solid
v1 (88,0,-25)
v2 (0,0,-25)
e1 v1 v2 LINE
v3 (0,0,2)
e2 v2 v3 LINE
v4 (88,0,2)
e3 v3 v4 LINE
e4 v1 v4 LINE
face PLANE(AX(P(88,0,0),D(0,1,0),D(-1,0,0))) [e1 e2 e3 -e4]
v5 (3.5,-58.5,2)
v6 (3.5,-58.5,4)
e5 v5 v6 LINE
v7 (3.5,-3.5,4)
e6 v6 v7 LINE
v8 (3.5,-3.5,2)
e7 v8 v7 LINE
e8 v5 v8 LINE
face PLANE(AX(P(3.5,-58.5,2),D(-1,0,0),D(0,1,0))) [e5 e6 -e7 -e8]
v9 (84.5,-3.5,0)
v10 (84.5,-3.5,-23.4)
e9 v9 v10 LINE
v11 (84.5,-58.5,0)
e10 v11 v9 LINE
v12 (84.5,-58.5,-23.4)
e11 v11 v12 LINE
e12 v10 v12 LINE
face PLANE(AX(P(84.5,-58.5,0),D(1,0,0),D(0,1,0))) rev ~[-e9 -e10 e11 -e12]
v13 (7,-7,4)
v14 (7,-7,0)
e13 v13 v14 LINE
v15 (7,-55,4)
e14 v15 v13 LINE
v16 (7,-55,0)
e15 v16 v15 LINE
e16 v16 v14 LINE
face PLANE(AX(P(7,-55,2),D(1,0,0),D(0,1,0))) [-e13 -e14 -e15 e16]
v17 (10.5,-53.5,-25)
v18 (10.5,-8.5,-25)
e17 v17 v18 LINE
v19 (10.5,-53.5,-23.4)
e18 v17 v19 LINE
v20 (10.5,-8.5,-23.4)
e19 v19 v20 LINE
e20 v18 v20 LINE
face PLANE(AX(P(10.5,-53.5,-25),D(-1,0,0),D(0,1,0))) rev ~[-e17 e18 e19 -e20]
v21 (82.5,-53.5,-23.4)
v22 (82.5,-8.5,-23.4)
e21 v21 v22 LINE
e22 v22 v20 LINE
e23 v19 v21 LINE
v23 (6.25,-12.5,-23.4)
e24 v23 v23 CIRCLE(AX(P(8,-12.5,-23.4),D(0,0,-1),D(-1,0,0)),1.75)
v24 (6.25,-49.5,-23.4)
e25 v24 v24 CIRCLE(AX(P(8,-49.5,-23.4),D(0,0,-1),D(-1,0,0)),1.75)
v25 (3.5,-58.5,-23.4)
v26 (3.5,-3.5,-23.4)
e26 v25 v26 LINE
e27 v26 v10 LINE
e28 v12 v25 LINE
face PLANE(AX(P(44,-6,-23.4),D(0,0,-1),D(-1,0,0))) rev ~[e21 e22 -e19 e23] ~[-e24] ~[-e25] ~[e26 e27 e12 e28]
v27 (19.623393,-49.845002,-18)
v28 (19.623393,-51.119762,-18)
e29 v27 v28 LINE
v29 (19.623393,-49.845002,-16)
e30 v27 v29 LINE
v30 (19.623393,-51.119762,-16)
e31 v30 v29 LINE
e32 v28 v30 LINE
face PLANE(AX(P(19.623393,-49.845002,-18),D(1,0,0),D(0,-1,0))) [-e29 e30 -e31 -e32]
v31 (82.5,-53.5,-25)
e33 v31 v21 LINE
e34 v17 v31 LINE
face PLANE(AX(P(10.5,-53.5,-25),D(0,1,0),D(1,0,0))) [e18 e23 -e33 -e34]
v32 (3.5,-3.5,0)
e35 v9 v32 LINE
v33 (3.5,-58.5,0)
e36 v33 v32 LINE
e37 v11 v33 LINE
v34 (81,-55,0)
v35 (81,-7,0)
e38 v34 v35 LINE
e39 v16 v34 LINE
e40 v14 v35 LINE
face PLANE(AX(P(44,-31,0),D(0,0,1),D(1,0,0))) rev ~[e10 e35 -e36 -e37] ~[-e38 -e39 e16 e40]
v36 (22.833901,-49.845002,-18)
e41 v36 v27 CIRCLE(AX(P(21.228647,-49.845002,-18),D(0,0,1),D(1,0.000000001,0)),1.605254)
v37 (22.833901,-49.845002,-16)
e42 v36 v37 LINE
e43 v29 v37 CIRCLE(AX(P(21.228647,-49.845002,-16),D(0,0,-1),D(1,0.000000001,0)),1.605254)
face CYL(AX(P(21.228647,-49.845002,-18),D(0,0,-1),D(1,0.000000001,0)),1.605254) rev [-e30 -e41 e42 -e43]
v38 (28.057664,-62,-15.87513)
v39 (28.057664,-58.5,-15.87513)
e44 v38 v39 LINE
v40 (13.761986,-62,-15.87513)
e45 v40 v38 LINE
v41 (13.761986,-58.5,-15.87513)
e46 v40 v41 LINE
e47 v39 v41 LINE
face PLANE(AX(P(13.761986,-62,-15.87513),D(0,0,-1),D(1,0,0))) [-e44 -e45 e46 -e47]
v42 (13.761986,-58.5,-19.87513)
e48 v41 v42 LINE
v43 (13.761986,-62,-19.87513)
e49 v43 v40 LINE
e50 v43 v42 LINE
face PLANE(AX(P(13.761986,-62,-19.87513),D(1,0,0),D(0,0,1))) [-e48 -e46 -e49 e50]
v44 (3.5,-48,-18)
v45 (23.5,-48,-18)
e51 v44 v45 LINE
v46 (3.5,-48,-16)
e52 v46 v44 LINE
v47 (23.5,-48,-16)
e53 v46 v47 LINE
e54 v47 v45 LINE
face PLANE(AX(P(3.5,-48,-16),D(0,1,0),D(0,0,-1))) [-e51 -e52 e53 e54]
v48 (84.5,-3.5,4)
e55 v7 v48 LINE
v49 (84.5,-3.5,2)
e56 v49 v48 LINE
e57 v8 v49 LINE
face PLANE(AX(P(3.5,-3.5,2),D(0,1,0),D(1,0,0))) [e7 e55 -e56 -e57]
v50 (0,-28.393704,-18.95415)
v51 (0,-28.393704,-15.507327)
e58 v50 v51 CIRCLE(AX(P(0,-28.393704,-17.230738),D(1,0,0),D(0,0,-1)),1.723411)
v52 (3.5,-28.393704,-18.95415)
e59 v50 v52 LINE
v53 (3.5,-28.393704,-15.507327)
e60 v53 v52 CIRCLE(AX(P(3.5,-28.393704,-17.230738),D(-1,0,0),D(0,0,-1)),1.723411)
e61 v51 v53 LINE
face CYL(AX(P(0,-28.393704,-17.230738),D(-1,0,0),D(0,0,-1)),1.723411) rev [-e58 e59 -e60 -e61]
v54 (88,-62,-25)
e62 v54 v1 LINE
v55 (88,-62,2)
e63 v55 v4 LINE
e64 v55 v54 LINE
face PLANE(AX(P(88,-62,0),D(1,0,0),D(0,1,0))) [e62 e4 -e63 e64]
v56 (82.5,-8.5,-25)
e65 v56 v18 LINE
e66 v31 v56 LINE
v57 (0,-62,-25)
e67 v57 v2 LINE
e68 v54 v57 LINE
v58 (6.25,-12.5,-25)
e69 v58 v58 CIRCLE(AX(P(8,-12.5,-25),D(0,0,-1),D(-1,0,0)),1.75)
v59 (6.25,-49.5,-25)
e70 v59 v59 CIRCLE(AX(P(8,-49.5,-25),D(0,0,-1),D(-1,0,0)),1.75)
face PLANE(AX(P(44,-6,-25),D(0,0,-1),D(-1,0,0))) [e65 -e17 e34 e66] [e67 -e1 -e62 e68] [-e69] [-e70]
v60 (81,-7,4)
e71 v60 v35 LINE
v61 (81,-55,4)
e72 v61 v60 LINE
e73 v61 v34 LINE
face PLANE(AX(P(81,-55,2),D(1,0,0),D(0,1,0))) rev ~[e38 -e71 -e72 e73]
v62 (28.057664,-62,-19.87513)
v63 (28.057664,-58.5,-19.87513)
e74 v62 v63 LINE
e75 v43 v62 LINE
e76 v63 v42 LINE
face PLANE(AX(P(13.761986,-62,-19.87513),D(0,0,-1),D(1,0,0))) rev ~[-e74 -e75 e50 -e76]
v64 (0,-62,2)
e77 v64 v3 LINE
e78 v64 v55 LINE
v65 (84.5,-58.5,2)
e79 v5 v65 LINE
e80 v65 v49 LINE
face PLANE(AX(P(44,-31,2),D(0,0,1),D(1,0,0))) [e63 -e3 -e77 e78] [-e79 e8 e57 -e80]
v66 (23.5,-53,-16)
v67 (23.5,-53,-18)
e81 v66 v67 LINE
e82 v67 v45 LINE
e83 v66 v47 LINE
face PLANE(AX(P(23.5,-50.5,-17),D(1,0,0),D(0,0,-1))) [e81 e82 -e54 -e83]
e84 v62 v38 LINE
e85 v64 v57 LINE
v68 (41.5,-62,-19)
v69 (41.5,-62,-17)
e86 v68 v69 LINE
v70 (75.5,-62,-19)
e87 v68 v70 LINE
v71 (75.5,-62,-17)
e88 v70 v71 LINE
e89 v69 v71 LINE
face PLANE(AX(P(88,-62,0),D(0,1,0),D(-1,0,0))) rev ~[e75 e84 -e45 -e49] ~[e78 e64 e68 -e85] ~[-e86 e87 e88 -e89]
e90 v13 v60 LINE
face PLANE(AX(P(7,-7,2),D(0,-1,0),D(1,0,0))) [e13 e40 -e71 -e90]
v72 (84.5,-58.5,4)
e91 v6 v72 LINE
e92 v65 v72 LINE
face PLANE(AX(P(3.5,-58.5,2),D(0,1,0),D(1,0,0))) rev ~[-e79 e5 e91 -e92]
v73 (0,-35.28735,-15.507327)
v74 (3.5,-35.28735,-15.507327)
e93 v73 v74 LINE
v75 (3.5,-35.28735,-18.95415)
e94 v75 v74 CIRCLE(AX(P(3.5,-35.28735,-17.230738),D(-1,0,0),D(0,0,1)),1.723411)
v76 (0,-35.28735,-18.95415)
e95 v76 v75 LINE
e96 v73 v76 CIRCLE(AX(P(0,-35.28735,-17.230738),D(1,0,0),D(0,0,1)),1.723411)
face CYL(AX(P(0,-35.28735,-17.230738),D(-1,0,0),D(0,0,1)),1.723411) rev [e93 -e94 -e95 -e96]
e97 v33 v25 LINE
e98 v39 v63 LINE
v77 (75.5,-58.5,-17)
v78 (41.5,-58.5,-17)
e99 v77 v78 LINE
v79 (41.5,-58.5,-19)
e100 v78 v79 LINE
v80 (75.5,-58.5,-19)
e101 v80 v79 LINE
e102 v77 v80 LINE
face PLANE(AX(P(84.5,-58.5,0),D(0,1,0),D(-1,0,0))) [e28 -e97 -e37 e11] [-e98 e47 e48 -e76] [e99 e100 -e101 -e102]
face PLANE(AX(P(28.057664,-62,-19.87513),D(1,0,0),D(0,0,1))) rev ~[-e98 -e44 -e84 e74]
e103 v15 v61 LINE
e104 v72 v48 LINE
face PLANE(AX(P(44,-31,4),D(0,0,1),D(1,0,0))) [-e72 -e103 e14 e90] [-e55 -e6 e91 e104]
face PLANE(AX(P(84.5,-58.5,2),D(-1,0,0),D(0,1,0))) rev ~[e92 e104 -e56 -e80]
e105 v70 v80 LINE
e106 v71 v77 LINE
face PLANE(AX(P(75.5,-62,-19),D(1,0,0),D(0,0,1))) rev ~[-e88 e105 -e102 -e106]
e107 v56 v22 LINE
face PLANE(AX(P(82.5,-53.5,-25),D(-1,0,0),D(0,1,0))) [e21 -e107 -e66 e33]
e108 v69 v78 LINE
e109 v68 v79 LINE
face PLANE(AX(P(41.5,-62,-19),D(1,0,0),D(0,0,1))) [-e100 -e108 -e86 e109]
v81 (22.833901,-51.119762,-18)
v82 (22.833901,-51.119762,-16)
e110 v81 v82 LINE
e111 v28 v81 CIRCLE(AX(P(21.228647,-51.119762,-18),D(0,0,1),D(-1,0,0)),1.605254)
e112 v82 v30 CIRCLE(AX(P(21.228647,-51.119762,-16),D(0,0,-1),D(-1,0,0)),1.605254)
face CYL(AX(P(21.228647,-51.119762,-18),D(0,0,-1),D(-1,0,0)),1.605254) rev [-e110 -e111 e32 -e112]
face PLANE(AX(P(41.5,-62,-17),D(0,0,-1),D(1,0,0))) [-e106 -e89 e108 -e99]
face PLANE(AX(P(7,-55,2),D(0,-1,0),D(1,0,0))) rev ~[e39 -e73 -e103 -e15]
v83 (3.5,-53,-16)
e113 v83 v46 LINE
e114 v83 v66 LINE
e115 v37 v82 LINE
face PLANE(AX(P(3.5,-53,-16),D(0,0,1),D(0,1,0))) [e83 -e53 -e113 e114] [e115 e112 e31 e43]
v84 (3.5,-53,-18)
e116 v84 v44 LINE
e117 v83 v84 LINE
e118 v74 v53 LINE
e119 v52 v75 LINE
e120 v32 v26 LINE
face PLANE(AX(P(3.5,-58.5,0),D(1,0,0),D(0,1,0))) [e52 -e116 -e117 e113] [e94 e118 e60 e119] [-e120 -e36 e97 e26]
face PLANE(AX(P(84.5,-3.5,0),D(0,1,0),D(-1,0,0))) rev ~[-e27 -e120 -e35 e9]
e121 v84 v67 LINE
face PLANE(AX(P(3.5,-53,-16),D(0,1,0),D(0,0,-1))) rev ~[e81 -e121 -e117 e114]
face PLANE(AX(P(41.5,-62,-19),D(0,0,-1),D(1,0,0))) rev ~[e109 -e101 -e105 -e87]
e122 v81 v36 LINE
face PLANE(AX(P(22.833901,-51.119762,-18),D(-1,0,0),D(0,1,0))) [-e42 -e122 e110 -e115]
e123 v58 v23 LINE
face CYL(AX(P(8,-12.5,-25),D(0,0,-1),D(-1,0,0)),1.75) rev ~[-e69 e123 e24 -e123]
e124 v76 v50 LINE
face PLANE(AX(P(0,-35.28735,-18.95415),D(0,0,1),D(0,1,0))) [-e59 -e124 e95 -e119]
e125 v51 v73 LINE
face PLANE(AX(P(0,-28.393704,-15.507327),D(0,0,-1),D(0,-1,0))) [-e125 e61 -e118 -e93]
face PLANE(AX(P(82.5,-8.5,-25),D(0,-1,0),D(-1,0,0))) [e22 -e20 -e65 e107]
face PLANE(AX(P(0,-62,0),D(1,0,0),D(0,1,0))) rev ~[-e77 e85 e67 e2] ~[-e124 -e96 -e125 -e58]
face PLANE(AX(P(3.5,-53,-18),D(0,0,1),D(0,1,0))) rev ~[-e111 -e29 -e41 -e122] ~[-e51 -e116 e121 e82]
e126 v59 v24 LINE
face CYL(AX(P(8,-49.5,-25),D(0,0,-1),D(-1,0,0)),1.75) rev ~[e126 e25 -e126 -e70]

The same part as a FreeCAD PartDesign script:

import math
import FreeCAD as App
import Part
import Sketcher
Q = App.Units.Quantity


def add_polygon(sketch, points):
    """Adds a closed chain of lines whose ends are joined by coincident constraints."""
    first, n = sketch.GeometryCount, len(points)
    for a, b in zip(points, points[1:] + points[:1]):
        sketch.addGeometry(Part.LineSegment(App.Vector(*a, 0), App.Vector(*b, 0)), False)
    for i in range(n):
        sketch.addConstraint(Sketcher.Constraint("Coincident", first + i, 2, first + (i + 1) % n, 1))

doc = App.newDocument("Part")
body = doc.addObject("PartDesign::Body", "Body")

# Sketch on XY plane
sketch1 = body.newObject("Sketcher::SketchObject", "Sketch")
sketch1.AttachmentSupport = (doc.getObject("XY_Plane"), [""])
sketch1.MapMode = "FlatFace"
add_polygon(sketch1, [(0, 0), (0, -62), (88, -62), (88, 0)])  # lines 0-3
sketch1.addConstraint([
    Sketcher.Constraint("Vertical", 0),
    Sketcher.Constraint("Horizontal", 1),
    Sketcher.Constraint("Vertical", 2),
    Sketcher.Constraint("Horizontal", 3),
    Sketcher.Constraint("Coincident", 3, 2, -1, 1),
    Sketcher.Constraint("DistanceX", 1, 1, 1, 2, Q("88 mm")),
    Sketcher.Constraint("DistanceY", 0, 2, 0, 1, Q("62 mm")),
])
pad1 = body.newObject("PartDesign::Pad", "Pad")
pad1.Profile = sketch1
pad1.Length = 2

# Sketch on XY plane
sketch2 = body.newObject("Sketcher::SketchObject", "Sketch001")
sketch2.AttachmentSupport = (doc.getObject("XY_Plane"), [""])
sketch2.MapMode = "FlatFace"
sketch2.AttachmentOffset = App.Placement(App.Vector(0, 0, 2), App.Rotation())
add_polygon(sketch2, [(4, -4), (4, -58), (84, -58), (84, -4)])  # lines 0-3
add_polygon(sketch2, [(81, -55), (7, -55), (7, -7), (81, -7)])  # lines 4-7
sketch2.addConstraint([
    Sketcher.Constraint("Vertical", 0),
    Sketcher.Constraint("Horizontal", 1),
    Sketcher.Constraint("Vertical", 2),
    Sketcher.Constraint("Horizontal", 3),
    Sketcher.Constraint("Horizontal", 4),
    Sketcher.Constraint("Vertical", 5),
    Sketcher.Constraint("Horizontal", 6),
    Sketcher.Constraint("Vertical", 7),
    Sketcher.Constraint("DistanceX", 1, 1, 1, 2, Q("81 mm")),
    Sketcher.Constraint("DistanceX", 4, 2, 4, 1, Q("74 mm")),
    Sketcher.Constraint("DistanceY", 0, 2, 0, 1, Q("55 mm")),
    Sketcher.Constraint("DistanceY", 5, 1, 5, 2, Q("48 mm")),
    Sketcher.Constraint("DistanceX", -1, 1, 4, 2, Q("7 mm")),
    Sketcher.Constraint("DistanceY", 4, 2, -1, 1, Q("55 mm")),
    Sketcher.Constraint("DistanceX", -1, 1, 0, 2, Q("3.5 mm")),
    Sketcher.Constraint("DistanceY", 0, 2, -1, 1, Q("58.5 mm")),
])
pad2 = body.newObject("PartDesign::Pad", "Pad001")
pad2.Profile = sketch2
pad2.Length = 2

# Sketch on XY plane
sketch3 = body.newObject("Sketcher::SketchObject", "Sketch002")
sketch3.AttachmentSupport = (doc.getObject("XY_Plane"), [""])
sketch3.MapMode = "FlatFace"
add_polygon(sketch3, [(88, 0), (88, -62), (0, -62), (0, 0)])  # lines 0-3
add_polygon(sketch3, [(4, -58), (84, -58), (84, -4), (4, -4)])  # lines 4-7
sketch3.addConstraint([
    Sketcher.Constraint("Vertical", 0),
    Sketcher.Constraint("Horizontal", 1),
    Sketcher.Constraint("Vertical", 2),
    Sketcher.Constraint("Horizontal", 3),
    Sketcher.Constraint("Horizontal", 4),
    Sketcher.Constraint("Vertical", 5),
    Sketcher.Constraint("Horizontal", 6),
    Sketcher.Constraint("Vertical", 7),
    Sketcher.Constraint("Coincident", 2, 2, -1, 1),
    Sketcher.Constraint("DistanceX", 1, 2, 1, 1, Q("88 mm")),
    Sketcher.Constraint("DistanceX", 4, 1, 4, 2, Q("81 mm")),
    Sketcher.Constraint("DistanceY", 0, 2, 0, 1, Q("62 mm")),
    Sketcher.Constraint("DistanceY", 5, 1, 5, 2, Q("55 mm")),
    Sketcher.Constraint("DistanceX", -1, 1, 4, 2, Q("84.5 mm")),
    Sketcher.Constraint("DistanceY", 4, 2, -1, 1, Q("58.5 mm")),
])
pad3 = body.newObject("PartDesign::Pad", "Pad002")
pad3.Profile = sketch3
pad3.Length = 25
pad3.Reversed = True

# Sketch on XY plane
sketch4 = body.newObject("Sketcher::SketchObject", "Sketch003")
sketch4.AttachmentSupport = (doc.getObject("XY_Plane"), [""])
sketch4.MapMode = "FlatFace"
sketch4.AttachmentOffset = App.Placement(App.Vector(0, 0, 2), App.Rotation())
add_polygon(sketch4, [(7, -7), (7, -55), (81, -55), (81, -7)])  # lines 0-3
sketch4.addConstraint([
    Sketcher.Constraint("Vertical", 0),
    Sketcher.Constraint("Horizontal", 1),
    Sketcher.Constraint("Vertical", 2),
    Sketcher.Constraint("Horizontal", 3),
    Sketcher.Constraint("DistanceX", 1, 1, 1, 2, Q("74 mm")),
    Sketcher.Constraint("DistanceY", 0, 2, 0, 1, Q("48 mm")),
    Sketcher.Constraint("DistanceX", -1, 1, 0, 2, Q("7 mm")),
    Sketcher.Constraint("DistanceY", 0, 2, -1, 1, Q("55 mm")),
])
pocket1 = body.newObject("PartDesign::Pocket", "Pocket")
pocket1.Profile = sketch4
pocket1.Length = 20

# Sketch on XY plane
sketch5 = body.newObject("Sketcher::SketchObject", "Sketch004")
sketch5.AttachmentSupport = (doc.getObject("XY_Plane"), [""])
sketch5.MapMode = "FlatFace"
sketch5.AttachmentOffset = App.Placement(App.Vector(0, 0, -25), App.Rotation())
add_polygon(sketch5, [(3.5, -3.5), (84.5, -3.5), (84.5, -58.5), (3.5, -58.5)])  # lines 0-3
add_polygon(sketch5, [(82.5, -53.5), (82.5, -8.5), (10.5, -8.5), (10.5, -53.5)])  # lines 4-7
sketch5.addGeometry(Part.Circle(App.Vector(8, -49.5, 0), App.Vector(0, 0, 1), 1.8), False)  # 8
sketch5.addGeometry(Part.Circle(App.Vector(8, -12.5, 0), App.Vector(0, 0, 1), 1.8), False)  # 9
sketch5.addConstraint([
    Sketcher.Constraint("Horizontal", 0),
    Sketcher.Constraint("Vertical", 1),
    Sketcher.Constraint("Horizontal", 2),
    Sketcher.Constraint("Vertical", 3),
    Sketcher.Constraint("Vertical", 4),
    Sketcher.Constraint("Horizontal", 5),
    Sketcher.Constraint("Vertical", 6),
    Sketcher.Constraint("Horizontal", 7),
    Sketcher.Constraint("Equal", 8, 9),
    Sketcher.Constraint("Vertical", 8, 3, 9, 3),
    Sketcher.Constraint("Diameter", 8, Q("3.5 mm")),
    Sketcher.Constraint("DistanceX", 0, 1, 0, 2, Q("81 mm")),
    Sketcher.Constraint("DistanceX", 5, 2, 5, 1, Q("72 mm")),
    Sketcher.Constraint("DistanceY", 1, 2, 1, 1, Q("55 mm")),
    Sketcher.Constraint("DistanceY", 4, 1, 4, 2, Q("45 mm")),
    Sketcher.Constraint("DistanceX", -1, 1, 8, 3, Q("8 mm")),
    Sketcher.Constraint("DistanceY", 8, 3, 9, 3, Q("37 mm")),
    Sketcher.Constraint("DistanceY", 9, 3, 0, 2, Q("9 mm")),
    Sketcher.Constraint("DistanceX", 4, 2, 0, 2, Q("2 mm")),
    Sketcher.Constraint("DistanceY", 4, 2, 0, 2, Q("5 mm")),
    Sketcher.Constraint("DistanceY", 8, 3, -1, 1, Q("49.5 mm")),
    Sketcher.Constraint("DistanceX", -1, 1, 0, 2, Q("84.5 mm")),
])
pad4 = body.newObject("PartDesign::Pad", "Pad003")
pad4.Profile = sketch5
pad4.Length = 1.6

# Sketch on YZ plane
sketch6 = body.newObject("Sketcher::SketchObject", "Sketch005")
sketch6.AttachmentSupport = (doc.getObject("YZ_Plane"), [""])
sketch6.MapMode = "FlatFace"
sketch6.AttachmentOffset = App.Placement(App.Vector(0, 0, 3.5), App.Rotation())
add_polygon(sketch6, [(-48, -16), (-53, -16), (-53, -18), (-48, -18)])  # lines 0-3
sketch6.addConstraint([
    Sketcher.Constraint("Horizontal", 0),
    Sketcher.Constraint("Vertical", 1),
    Sketcher.Constraint("Horizontal", 2),
    Sketcher.Constraint("Vertical", 3),
    Sketcher.Constraint("DistanceX", 0, 2, 0, 1, Q("5 mm")),
    Sketcher.Constraint("DistanceY", 1, 2, 1, 1, Q("2 mm")),
    Sketcher.Constraint("DistanceX", 0, 2, -1, 1, Q("53 mm")),
    Sketcher.Constraint("DistanceY", 0, 2, -1, 1, Q("16 mm")),
])
pad5 = body.newObject("PartDesign::Pad", "Pad004")
pad5.Profile = sketch6
pad5.Length = 20

# Sketch on XY plane
sketch7 = body.newObject("Sketcher::SketchObject", "Sketch006")
sketch7.AttachmentSupport = (doc.getObject("XY_Plane"), [""])
sketch7.MapMode = "FlatFace"
sketch7.AttachmentOffset = App.Placement(App.Vector(0, 0, -18), App.Rotation())
sketch7.addGeometry([
    Part.LineSegment(App.Vector(19.6, -51.1, 0), App.Vector(19.6, -49.8, 0)),
    Part.ArcOfCircle(Part.Circle(App.Vector(21.2, -49.8, 0), App.Vector(0, 0, 1), 1.6), math.radians(0), math.radians(180)),
    Part.LineSegment(App.Vector(22.8, -49.8, 0), App.Vector(22.8, -51.1, 0)),
    Part.ArcOfCircle(Part.Circle(App.Vector(21.2, -51.1, 0), App.Vector(0, 0, 1), 1.6), math.radians(180), math.radians(360)),
], False)
sketch7.addConstraint([
    Sketcher.Constraint("Tangent", 0, 2, 1, 2),
    Sketcher.Constraint("Tangent", 1, 1, 2, 1),
    Sketcher.Constraint("Tangent", 2, 2, 3, 2),
    Sketcher.Constraint("Tangent", 3, 1, 0, 1),
    Sketcher.Constraint("Vertical", 0),
    Sketcher.Constraint("Vertical", 2),
    Sketcher.Constraint("DistanceY", 1, 3, -1, 1, Q("49.845002 mm")),
    Sketcher.Constraint("Radius", 1, Q("1.605254 mm")),
    Sketcher.Constraint("DistanceY", 0, 1, 0, 2, Q("1.274761 mm")),
    Sketcher.Constraint("DistanceX", -1, 1, 1, 1, Q("22.833901 mm")),
])
pocket2 = body.newObject("PartDesign::Pocket", "Pocket001")
pocket2.Profile = sketch7
pocket2.Length = 17
pocket2.Reversed = True

# Sketch on XZ plane
sketch8 = body.newObject("Sketcher::SketchObject", "Sketch007")
sketch8.AttachmentSupport = (doc.getObject("XZ_Plane"), [""])
sketch8.MapMode = "FlatFace"
sketch8.AttachmentOffset = App.Placement(App.Vector(0, 0, 62), App.Rotation())
add_polygon(sketch8, [(41.5, -17), (41.5, -19), (75.5, -19), (75.5, -17)])  # lines 0-3
add_polygon(sketch8, [(13.8, -15.9), (13.8, -19.9), (28.1, -19.9), (28.1, -15.9)])  # lines 4-7
sketch8.addConstraint([
    Sketcher.Constraint("Vertical", 0),
    Sketcher.Constraint("Horizontal", 1),
    Sketcher.Constraint("Vertical", 2),
    Sketcher.Constraint("Horizontal", 3),
    Sketcher.Constraint("Vertical", 4),
    Sketcher.Constraint("Horizontal", 5),
    Sketcher.Constraint("Vertical", 6),
    Sketcher.Constraint("Horizontal", 7),
    Sketcher.Constraint("DistanceX", 1, 1, 1, 2, Q("34 mm")),
    Sketcher.Constraint("DistanceY", 0, 2, 0, 1, Q("2 mm")),
    Sketcher.Constraint("DistanceY", 4, 2, 4, 1, Q("4 mm")),
    Sketcher.Constraint("DistanceY", 0, 2, -1, 1, Q("19 mm")),
    Sketcher.Constraint("DistanceX", -1, 1, 0, 2, Q("41.5 mm")),
    Sketcher.Constraint("DistanceX", 5, 1, 5, 2, Q("14.295678 mm")),
    Sketcher.Constraint("DistanceY", 4, 2, -1, 1, Q("19.87513 mm")),
    Sketcher.Constraint("DistanceX", -1, 1, 4, 2, Q("13.761986 mm")),
])
pocket3 = body.newObject("PartDesign::Pocket", "Pocket002")
pocket3.Profile = sketch8
pocket3.Length = 5

# Sketch on YZ plane
sketch9 = body.newObject("Sketcher::SketchObject", "Sketch008")
sketch9.AttachmentSupport = (doc.getObject("YZ_Plane"), [""])
sketch9.MapMode = "FlatFace"
sketch9.addGeometry([
    Part.LineSegment(App.Vector(-35.3, -15.5, 0), App.Vector(-28.4, -15.5, 0)),
    Part.ArcOfCircle(Part.Circle(App.Vector(-28.4, -17.2, 0), App.Vector(0, 0, 1), 1.7), math.radians(-90), math.radians(90)),
    Part.LineSegment(App.Vector(-28.4, -19, 0), App.Vector(-35.3, -19, 0)),
    Part.ArcOfCircle(Part.Circle(App.Vector(-35.3, -17.2, 0), App.Vector(0, 0, 1), 1.7), math.radians(90), math.radians(270)),
], False)
sketch9.addConstraint([
    Sketcher.Constraint("Tangent", 0, 2, 1, 2),
    Sketcher.Constraint("Tangent", 1, 1, 2, 1),
    Sketcher.Constraint("Tangent", 2, 2, 3, 2),
    Sketcher.Constraint("Tangent", 3, 1, 0, 1),
    Sketcher.Constraint("Horizontal", 0),
    Sketcher.Constraint("Horizontal", 2),
    Sketcher.Constraint("Radius", 1, Q("1.723411 mm")),
    Sketcher.Constraint("DistanceX", 0, 1, 0, 2, Q("6.893645 mm")),
    Sketcher.Constraint("DistanceY", 1, 3, -1, 1, Q("17.230738 mm")),
    Sketcher.Constraint("DistanceX", 3, 3, -1, 1, Q("35.28735 mm")),
])
pocket4 = body.newObject("PartDesign::Pocket", "Pocket003")
pocket4.Profile = sketch9
pocket4.Length = 5
pocket4.Reversed = True

doc.recompute()
